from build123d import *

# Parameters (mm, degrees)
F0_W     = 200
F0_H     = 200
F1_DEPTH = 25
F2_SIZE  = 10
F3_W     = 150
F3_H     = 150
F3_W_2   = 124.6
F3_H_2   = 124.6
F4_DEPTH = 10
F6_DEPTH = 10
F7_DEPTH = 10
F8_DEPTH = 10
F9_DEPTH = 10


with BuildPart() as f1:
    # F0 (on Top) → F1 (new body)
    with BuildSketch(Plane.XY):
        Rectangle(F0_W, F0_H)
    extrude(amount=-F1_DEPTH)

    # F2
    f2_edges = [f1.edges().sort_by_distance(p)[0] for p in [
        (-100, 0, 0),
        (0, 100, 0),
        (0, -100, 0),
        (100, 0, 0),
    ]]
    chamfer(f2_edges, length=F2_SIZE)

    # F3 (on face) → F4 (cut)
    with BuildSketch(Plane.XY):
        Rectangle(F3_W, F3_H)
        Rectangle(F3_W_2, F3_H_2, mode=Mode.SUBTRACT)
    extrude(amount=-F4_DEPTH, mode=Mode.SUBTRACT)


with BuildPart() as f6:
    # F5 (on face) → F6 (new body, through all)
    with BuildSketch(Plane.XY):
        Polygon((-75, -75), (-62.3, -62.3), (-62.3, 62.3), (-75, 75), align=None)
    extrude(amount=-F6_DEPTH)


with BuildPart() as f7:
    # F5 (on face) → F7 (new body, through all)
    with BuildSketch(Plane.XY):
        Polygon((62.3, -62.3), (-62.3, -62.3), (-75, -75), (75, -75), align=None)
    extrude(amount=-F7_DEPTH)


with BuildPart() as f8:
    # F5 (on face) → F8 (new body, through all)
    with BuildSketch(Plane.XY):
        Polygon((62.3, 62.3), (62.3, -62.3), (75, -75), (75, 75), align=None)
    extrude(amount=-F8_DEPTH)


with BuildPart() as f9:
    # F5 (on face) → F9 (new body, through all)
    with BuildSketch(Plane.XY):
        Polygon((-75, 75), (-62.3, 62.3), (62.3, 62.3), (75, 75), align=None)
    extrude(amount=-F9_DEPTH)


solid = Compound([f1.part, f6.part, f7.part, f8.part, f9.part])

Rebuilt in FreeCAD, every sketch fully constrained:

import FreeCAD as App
import Part
import Sketcher

V = App.Vector
Q = App.Units.Quantity


def edges_at(feature, points):
    """Names of the edges that pass closest to the given points."""
    edges = feature.Shape.Edges
    near = lambda p: min(range(len(edges)), key=lambda i: edges[i].distToShape(Part.Vertex(*p))[0])
    return sorted({f"Edge{near(p) + 1}" for p in points})

doc = App.newDocument("Part")
body = doc.addObject("PartDesign::Body", "Body")

sketch1 = doc.addObject("Sketcher::SketchObject", "Sketch")
body.addObject(sketch1)
sketch1.AttachmentSupport = (doc.XY_Plane, [""])
sketch1.MapMode = "FlatFace"
sketch1.addGeometry([
    Part.LineSegment(V(-100, 100, 0), V(-100, -100, 0)),
    Part.LineSegment(V(-100, -100, 0), V(100, -100, 0)),
    Part.LineSegment(V(100, -100, 0), V(100, 100, 0)),
    Part.LineSegment(V(100, 100, 0), V(-100, 100, 0)),
], False)
sketch1.addConstraint([
    Sketcher.Constraint("Coincident", 0, 2, 1, 1),
    Sketcher.Constraint("Coincident", 1, 2, 2, 1),
    Sketcher.Constraint("Coincident", 2, 2, 3, 1),
    Sketcher.Constraint("Coincident", 3, 2, 0, 1),
    Sketcher.Constraint("Vertical", 0),
    Sketcher.Constraint("Horizontal", 1),
    Sketcher.Constraint("Vertical", 2),
    Sketcher.Constraint("Horizontal", 3),
    Sketcher.Constraint("Symmetric", 0, 2, 2, 2, -1, 1),
    Sketcher.Constraint("Equal", 3, 0),
    Sketcher.Constraint("DistanceX", 1, 1, 1, 2, Q("200 mm")),
])
pad1 = doc.addObject("PartDesign::Pad", "Pad")
body.addObject(pad1)
pad1.Profile = sketch1
pad1.Length = 25
pad1.Reversed = True
doc.recompute()

chamfer = doc.addObject("PartDesign::Chamfer", "Chamfer")
body.addObject(chamfer)
chamfer.Base = (pad1, edges_at(pad1, [
    (-100, 0, 0),
    (0, 100, 0),
    (0, -100, 0),
    (100, 0, 0),
]))
chamfer.Size = 10

sketch2 = doc.addObject("Sketcher::SketchObject", "Sketch001")
body.addObject(sketch2)
sketch2.AttachmentSupport = (doc.XY_Plane, [""])
sketch2.MapMode = "FlatFace"
sketch2.addGeometry([
    Part.LineSegment(V(-75, 75, 0), V(-75, -75, 0)),
    Part.LineSegment(V(-75, -75, 0), V(75, -75, 0)),
    Part.LineSegment(V(75, -75, 0), V(75, 75, 0)),
    Part.LineSegment(V(75, 75, 0), V(-75, 75, 0)),
    Part.LineSegment(V(62.3, -62.3, 0), V(-62.3, -62.3, 0)),
    Part.LineSegment(V(-62.3, -62.3, 0), V(-62.3, 62.3, 0)),
    Part.LineSegment(V(-62.3, 62.3, 0), V(62.3, 62.3, 0)),
    Part.LineSegment(V(62.3, 62.3, 0), V(62.3, -62.3, 0)),
], False)
sketch2.addConstraint([
    Sketcher.Constraint("Coincident", 0, 2, 1, 1),
    Sketcher.Constraint("Coincident", 1, 2, 2, 1),
    Sketcher.Constraint("Coincident", 2, 2, 3, 1),
    Sketcher.Constraint("Coincident", 3, 2, 0, 1),
    Sketcher.Constraint("Coincident", 4, 2, 5, 1),
    Sketcher.Constraint("Coincident", 5, 2, 6, 1),
    Sketcher.Constraint("Coincident", 6, 2, 7, 1),
    Sketcher.Constraint("Coincident", 7, 2, 4, 1),
    Sketcher.Constraint("Vertical", 0),
    Sketcher.Constraint("Horizontal", 1),
    Sketcher.Constraint("Vertical", 2),
    Sketcher.Constraint("Horizontal", 3),
    Sketcher.Constraint("Horizontal", 4),
    Sketcher.Constraint("Vertical", 5),
    Sketcher.Constraint("Horizontal", 6),
    Sketcher.Constraint("Vertical", 7),
    Sketcher.Constraint("Symmetric", 0, 2, 2, 2, -1, 1),
    Sketcher.Constraint("Symmetric", 4, 2, 6, 2, -1, 1),
    Sketcher.Constraint("Equal", 3, 0),
    Sketcher.Constraint("Equal", 6, 5),
    Sketcher.Constraint("DistanceX", 1, 1, 1, 2, Q("150 mm")),
    Sketcher.Constraint("DistanceX", 4, 2, 4, 1, Q("124.6 mm")),
])
pocket1 = doc.addObject("PartDesign::Pocket", "Pocket")
body.addObject(pocket1)
pocket1.Profile = sketch2
pocket1.Length = 10
body2 = doc.addObject("PartDesign::Body", "Body001")

sketch3 = doc.addObject("Sketcher::SketchObject", "Sketch002")
body2.addObject(sketch3)
sketch3.AttachmentSupport = (doc.getObject("XY_Plane001"), [""])
sketch3.MapMode = "FlatFace"
sketch3.addGeometry([
    Part.LineSegment(V(-75, -75, 0), V(-62.3, -62.3, 0)),
    Part.LineSegment(V(-62.3, -62.3, 0), V(-62.3, 62.3, 0)),
    Part.LineSegment(V(-62.3, 62.3, 0), V(-75, 75, 0)),
    Part.LineSegment(V(-75, 75, 0), V(-75, -75, 0)),
], False)
sketch3.addConstraint([
    Sketcher.Constraint("Coincident", 0, 2, 1, 1),
    Sketcher.Constraint("Coincident", 1, 2, 2, 1),
    Sketcher.Constraint("Coincident", 2, 2, 3, 1),
    Sketcher.Constraint("Coincident", 3, 2, 0, 1),
    Sketcher.Constraint("Vertical", 1),
    Sketcher.Constraint("Vertical", 3),
    Sketcher.Constraint("Perpendicular", 0, 2),
    Sketcher.Constraint("Equal", 0, 2),
    Sketcher.Constraint("DistanceY", 3, 2, 3, 1, Q("150 mm")),
    Sketcher.Constraint("DistanceY", 1, 1, 1, 2, Q("124.6 mm")),
    Sketcher.Constraint("DistanceX", 2, 2, -1, 1, Q("75 mm")),
    Sketcher.Constraint("DistanceY", -1, 1, 2, 2, Q("75 mm")),
])
pad2 = doc.addObject("PartDesign::Pad", "Pad001")
body2.addObject(pad2)
pad2.Profile = sketch3
pad2.Length = 10
pad2.Reversed = True
body3 = doc.addObject("PartDesign::Body", "Body002")

sketch4 = doc.addObject("Sketcher::SketchObject", "Sketch003")
body3.addObject(sketch4)
sketch4.AttachmentSupport = (doc.getObject("XY_Plane002"), [""])
sketch4.MapMode = "FlatFace"
sketch4.addGeometry([
    Part.LineSegment(V(62.3, -62.3, 0), V(-62.3, -62.3, 0)),
    Part.LineSegment(V(-62.3, -62.3, 0), V(-75, -75, 0)),
    Part.LineSegment(V(-75, -75, 0), V(75, -75, 0)),
    Part.LineSegment(V(75, -75, 0), V(62.3, -62.3, 0)),
], False)
sketch4.addConstraint([
    Sketcher.Constraint("Coincident", 0, 2, 1, 1),
    Sketcher.Constraint("Coincident", 1, 2, 2, 1),
    Sketcher.Constraint("Coincident", 2, 2, 3, 1),
    Sketcher.Constraint("Coincident", 3, 2, 0, 1),
    Sketcher.Constraint("Horizontal", 0),
    Sketcher.Constraint("Horizontal", 2),
    Sketcher.Constraint("Perpendicular", 1, 3),
    Sketcher.Constraint("Equal", 1, 3),
    Sketcher.Constraint("DistanceX", 2, 1, 2, 2, Q("150 mm")),
    Sketcher.Constraint("DistanceX", 0, 2, 0, 1, Q("124.6 mm")),
    Sketcher.Constraint("DistanceX", 1, 2, -1, 1, Q("75 mm")),
    Sketcher.Constraint("DistanceY", 1, 2, -1, 1, Q("75 mm")),
])
pad3 = doc.addObject("PartDesign::Pad", "Pad002")
body3.addObject(pad3)
pad3.Profile = sketch4
pad3.Length = 10
pad3.Reversed = True
body4 = doc.addObject("PartDesign::Body", "Body003")

sketch5 = doc.addObject("Sketcher::SketchObject", "Sketch004")
body4.addObject(sketch5)
sketch5.AttachmentSupport = (doc.getObject("XY_Plane003"), [""])
sketch5.MapMode = "FlatFace"
sketch5.addGeometry([
    Part.LineSegment(V(62.3, 62.3, 0), V(62.3, -62.3, 0)),
    Part.LineSegment(V(62.3, -62.3, 0), V(75, -75, 0)),
    Part.LineSegment(V(75, -75, 0), V(75, 75, 0)),
    Part.LineSegment(V(75, 75, 0), V(62.3, 62.3, 0)),
], False)
sketch5.addConstraint([
    Sketcher.Constraint("Coincident", 0, 2, 1, 1),
    Sketcher.Constraint("Coincident", 1, 2, 2, 1),
    Sketcher.Constraint("Coincident", 2, 2, 3, 1),
    Sketcher.Constraint("Coincident", 3, 2, 0, 1),
    Sketcher.Constraint("Vertical", 0),
    Sketcher.Constraint("Vertical", 2),
    Sketcher.Constraint("Perpendicular", 1, 3),
    Sketcher.Constraint("Equal", 1, 3),
    Sketcher.Constraint("DistanceY", 2, 1, 2, 2, Q("150 mm")),
    Sketcher.Constraint("DistanceY", 0, 2, 0, 1, Q("124.6 mm")),
    Sketcher.Constraint("DistanceX", -1, 1, 1, 2, Q("75 mm")),
    Sketcher.Constraint("DistanceY", 1, 2, -1, 1, Q("75 mm")),
])
pad4 = doc.addObject("PartDesign::Pad", "Pad003")
body4.addObject(pad4)
pad4.Profile = sketch5
pad4.Length = 10
pad4.Reversed = True
body5 = doc.addObject("PartDesign::Body", "Body004")

sketch6 = doc.addObject("Sketcher::SketchObject", "Sketch005")
body5.addObject(sketch6)
sketch6.AttachmentSupport = (doc.getObject("XY_Plane004"), [""])
sketch6.MapMode = "FlatFace"
sketch6.addGeometry([
    Part.LineSegment(V(-75, 75, 0), V(-62.3, 62.3, 0)),
    Part.LineSegment(V(-62.3, 62.3, 0), V(62.3, 62.3, 0)),
    Part.LineSegment(V(62.3, 62.3, 0), V(75, 75, 0)),
    Part.LineSegment(V(75, 75, 0), V(-75, 75, 0)),
], False)
sketch6.addConstraint([
    Sketcher.Constraint("Coincident", 0, 2, 1, 1),
    Sketcher.Constraint("Coincident", 1, 2, 2, 1),
    Sketcher.Constraint("Coincident", 2, 2, 3, 1),
    Sketcher.Constraint("Coincident", 3, 2, 0, 1),
    Sketcher.Constraint("Horizontal", 1),
    Sketcher.Constraint("Horizontal", 3),
    Sketcher.Constraint("Perpendicular", 0, 2),
    Sketcher.Constraint("Equal", 0, 2),
    Sketcher.Constraint("DistanceX", 3, 2, 3, 1, Q("150 mm")),
    Sketcher.Constraint("DistanceX", 1, 1, 1, 2, Q("124.6 mm")),
    Sketcher.Constraint("DistanceX", -1, 1, 2, 2, Q("75 mm")),
    Sketcher.Constraint("DistanceY", -1, 1, 2, 2, Q("75 mm")),
])
pad5 = doc.addObject("PartDesign::Pad", "Pad004")
body5.addObject(pad5)
pad5.Profile = sketch6
pad5.Length = 10
pad5.Reversed = True

doc.recompute()
